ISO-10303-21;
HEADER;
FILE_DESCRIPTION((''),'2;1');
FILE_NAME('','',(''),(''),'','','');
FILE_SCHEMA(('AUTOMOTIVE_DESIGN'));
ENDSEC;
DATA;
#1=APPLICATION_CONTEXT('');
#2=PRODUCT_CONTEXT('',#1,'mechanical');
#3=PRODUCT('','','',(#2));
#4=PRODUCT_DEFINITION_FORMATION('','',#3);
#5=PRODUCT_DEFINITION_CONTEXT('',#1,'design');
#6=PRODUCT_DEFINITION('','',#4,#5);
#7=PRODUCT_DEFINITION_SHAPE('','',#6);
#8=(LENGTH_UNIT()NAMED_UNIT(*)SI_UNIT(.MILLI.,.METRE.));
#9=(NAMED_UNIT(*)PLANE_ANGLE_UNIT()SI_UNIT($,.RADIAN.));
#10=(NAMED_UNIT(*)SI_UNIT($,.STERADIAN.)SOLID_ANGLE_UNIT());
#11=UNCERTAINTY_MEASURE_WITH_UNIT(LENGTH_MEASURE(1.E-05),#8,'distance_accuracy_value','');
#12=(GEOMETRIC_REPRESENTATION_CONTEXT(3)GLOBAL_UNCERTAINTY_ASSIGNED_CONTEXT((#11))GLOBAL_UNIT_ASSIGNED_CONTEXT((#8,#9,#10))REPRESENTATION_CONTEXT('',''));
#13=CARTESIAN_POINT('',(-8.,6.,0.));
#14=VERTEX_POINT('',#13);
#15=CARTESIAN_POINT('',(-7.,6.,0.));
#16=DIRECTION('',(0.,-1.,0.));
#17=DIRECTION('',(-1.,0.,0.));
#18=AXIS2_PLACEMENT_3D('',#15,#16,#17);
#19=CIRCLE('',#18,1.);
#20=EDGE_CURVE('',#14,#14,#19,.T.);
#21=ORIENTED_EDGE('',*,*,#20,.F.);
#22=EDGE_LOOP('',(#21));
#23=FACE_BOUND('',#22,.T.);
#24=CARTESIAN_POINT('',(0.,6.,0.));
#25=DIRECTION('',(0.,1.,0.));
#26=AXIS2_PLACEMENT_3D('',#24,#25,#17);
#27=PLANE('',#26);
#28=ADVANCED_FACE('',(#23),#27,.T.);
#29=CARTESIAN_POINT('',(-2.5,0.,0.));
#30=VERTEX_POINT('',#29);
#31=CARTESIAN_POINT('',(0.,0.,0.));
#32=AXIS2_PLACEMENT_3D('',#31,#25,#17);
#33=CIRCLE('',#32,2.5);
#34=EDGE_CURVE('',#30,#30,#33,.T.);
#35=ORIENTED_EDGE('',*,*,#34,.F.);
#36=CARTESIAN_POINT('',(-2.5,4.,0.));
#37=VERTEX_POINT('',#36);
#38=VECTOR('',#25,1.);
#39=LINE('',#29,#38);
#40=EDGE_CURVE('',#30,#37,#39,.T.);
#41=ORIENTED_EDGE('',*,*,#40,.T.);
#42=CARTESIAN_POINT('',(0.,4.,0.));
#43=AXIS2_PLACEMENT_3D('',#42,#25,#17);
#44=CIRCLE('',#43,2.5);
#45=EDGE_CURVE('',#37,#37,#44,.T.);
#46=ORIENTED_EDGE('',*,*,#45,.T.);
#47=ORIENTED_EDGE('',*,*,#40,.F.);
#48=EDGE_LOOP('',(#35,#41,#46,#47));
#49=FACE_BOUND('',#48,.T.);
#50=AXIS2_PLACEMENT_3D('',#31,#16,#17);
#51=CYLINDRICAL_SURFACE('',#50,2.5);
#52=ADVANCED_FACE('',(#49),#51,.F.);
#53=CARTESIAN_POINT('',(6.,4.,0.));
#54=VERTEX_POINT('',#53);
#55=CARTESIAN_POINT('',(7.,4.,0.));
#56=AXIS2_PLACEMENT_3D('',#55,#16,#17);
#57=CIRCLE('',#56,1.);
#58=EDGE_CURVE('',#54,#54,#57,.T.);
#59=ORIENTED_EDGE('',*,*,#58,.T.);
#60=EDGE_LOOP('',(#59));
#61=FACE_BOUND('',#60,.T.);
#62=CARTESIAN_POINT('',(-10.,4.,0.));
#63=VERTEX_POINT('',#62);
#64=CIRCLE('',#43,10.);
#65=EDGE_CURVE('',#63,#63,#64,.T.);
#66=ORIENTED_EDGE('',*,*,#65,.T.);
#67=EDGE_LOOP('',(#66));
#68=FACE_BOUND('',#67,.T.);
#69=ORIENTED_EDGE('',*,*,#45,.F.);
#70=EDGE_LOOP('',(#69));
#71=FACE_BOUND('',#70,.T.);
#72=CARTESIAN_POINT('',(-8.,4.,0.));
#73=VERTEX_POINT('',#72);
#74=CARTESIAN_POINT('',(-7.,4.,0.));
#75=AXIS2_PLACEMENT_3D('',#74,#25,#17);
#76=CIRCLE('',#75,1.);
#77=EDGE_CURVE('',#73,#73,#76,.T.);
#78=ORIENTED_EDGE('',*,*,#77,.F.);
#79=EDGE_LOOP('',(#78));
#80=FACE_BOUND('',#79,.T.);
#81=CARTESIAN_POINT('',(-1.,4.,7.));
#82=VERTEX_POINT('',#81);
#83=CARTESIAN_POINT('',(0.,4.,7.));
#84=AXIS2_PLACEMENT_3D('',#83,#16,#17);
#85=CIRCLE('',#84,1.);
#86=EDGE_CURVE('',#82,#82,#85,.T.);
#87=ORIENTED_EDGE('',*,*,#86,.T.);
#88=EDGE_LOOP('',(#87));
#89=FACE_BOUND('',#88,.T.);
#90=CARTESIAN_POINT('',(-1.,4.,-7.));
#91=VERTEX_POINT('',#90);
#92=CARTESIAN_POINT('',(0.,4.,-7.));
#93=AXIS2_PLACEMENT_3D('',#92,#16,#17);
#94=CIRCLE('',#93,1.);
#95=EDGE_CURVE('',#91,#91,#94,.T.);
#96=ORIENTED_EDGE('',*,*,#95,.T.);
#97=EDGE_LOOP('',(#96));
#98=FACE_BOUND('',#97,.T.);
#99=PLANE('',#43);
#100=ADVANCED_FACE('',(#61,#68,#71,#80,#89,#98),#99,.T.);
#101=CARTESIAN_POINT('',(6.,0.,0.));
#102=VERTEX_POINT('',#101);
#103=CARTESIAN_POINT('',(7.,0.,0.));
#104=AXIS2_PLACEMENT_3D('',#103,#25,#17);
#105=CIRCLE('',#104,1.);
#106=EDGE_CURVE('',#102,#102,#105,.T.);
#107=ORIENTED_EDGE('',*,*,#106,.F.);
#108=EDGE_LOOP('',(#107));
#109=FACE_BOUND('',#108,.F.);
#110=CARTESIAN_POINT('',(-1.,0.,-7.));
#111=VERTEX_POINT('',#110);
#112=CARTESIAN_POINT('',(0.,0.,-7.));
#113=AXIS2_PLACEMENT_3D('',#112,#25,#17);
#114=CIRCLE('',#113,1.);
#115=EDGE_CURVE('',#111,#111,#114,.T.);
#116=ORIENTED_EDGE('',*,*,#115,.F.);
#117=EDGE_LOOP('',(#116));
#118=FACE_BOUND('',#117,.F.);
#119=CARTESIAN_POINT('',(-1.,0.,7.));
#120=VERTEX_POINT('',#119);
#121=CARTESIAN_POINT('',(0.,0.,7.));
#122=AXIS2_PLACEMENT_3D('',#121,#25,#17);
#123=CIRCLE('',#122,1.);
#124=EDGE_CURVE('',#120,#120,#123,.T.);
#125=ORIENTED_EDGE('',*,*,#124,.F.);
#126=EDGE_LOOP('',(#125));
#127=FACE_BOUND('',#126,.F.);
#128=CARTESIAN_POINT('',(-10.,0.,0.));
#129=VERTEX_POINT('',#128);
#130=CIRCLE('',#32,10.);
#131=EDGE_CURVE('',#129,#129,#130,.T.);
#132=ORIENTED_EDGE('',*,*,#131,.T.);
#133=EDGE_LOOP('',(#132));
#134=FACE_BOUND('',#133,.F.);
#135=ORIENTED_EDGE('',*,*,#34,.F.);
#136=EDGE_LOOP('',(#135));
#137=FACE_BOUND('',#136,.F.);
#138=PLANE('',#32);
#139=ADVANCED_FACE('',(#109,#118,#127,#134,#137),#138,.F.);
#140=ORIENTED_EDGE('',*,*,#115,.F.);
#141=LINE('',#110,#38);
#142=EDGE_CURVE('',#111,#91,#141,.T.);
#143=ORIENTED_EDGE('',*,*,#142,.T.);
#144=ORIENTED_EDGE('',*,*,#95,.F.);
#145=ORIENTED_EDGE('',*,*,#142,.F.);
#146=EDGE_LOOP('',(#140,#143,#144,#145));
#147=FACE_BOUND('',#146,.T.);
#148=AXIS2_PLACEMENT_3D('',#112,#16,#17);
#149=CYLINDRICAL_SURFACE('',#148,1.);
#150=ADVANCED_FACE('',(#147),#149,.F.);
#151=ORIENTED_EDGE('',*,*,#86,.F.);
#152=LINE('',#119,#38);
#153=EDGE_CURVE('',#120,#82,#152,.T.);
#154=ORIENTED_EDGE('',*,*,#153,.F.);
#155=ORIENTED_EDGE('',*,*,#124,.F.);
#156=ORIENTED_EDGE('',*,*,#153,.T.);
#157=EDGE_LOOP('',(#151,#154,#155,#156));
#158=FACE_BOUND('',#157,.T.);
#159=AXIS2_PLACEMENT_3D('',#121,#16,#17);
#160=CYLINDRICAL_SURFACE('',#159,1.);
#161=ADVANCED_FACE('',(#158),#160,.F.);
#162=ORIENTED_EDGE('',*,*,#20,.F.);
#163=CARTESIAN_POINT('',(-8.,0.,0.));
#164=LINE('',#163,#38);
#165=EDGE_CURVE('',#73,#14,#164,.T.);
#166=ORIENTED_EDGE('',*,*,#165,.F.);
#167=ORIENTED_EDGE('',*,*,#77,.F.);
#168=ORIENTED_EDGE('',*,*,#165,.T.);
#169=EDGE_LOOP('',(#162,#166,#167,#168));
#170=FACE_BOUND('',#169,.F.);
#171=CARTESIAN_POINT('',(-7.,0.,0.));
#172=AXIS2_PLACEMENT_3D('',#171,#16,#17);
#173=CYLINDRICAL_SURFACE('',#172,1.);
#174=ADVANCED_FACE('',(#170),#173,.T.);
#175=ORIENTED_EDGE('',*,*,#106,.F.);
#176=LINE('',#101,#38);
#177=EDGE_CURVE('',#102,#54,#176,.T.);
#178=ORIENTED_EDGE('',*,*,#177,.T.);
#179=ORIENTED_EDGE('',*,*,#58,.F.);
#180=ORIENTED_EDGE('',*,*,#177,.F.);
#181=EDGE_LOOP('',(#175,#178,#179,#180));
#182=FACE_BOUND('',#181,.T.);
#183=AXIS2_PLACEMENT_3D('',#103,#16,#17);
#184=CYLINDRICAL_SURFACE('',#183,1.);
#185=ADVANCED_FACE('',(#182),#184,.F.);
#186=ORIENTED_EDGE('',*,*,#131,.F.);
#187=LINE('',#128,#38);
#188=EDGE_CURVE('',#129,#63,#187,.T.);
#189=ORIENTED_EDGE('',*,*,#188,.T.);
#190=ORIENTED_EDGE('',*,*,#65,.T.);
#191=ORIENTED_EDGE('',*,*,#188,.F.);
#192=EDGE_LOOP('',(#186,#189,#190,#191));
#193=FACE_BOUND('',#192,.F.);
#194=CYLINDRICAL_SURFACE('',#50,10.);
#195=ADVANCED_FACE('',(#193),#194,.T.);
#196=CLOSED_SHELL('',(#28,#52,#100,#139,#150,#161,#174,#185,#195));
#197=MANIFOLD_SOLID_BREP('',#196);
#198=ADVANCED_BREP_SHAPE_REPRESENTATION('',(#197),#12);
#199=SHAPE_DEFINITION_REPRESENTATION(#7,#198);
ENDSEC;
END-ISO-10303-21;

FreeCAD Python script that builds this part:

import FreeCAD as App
import Part
import Sketcher
from FreeCAD import Vector
Q = App.Units.Quantity

doc = App.newDocument("Part")
body = doc.addObject("PartDesign::Body", "Body")

sketch1 = body.newObject("Sketcher::SketchObject", "Sketch")
sketch1.AttachmentSupport = (doc.getObject("XZ_Plane"), [""])
sketch1.MapMode = "FlatFace"
sketch1.addGeometry([
    Part.Circle(Vector(0, 0, 0), Vector(0, 0, 1), 10),
    Part.Circle(Vector(-7, 0, 0), Vector(0, 0, 1), 1),
    Part.Circle(Vector(0, -7, 0), Vector(0, 0, 1), 1),
    Part.Circle(Vector(7, 0, 0), Vector(0, 0, 1), 1),
    Part.Circle(Vector(0, 7, 0), Vector(0, 0, 1), 1),
    Part.Circle(Vector(0, 0, 0), Vector(0, 0, 1), 2.5),
], False)
sketch1.addConstraint([
    Sketcher.Constraint("Coincident", 0, 3, -1, 1),
    Sketcher.Constraint("Coincident", 5, 3, -1, 1),
    Sketcher.Constraint("Equal", 1, 2),
    Sketcher.Constraint("Equal", 2, 3),
    Sketcher.Constraint("Equal", 3, 4),
    Sketcher.Constraint("Symmetric", 1, 3, 3, 3, -1, 1),
    Sketcher.Constraint("Symmetric", 2, 3, 4, 3, -1, 1),
    Sketcher.Constraint("PointOnObject", 1, 3, -1),
    Sketcher.Constraint("PointOnObject", 2, 3, -2),
    Sketcher.Constraint("Diameter", 1, Q("2 mm")),
    Sketcher.Constraint("Diameter", 5, Q("5 mm")),
    Sketcher.Constraint("Diameter", 0, Q("20 mm")),
    Sketcher.Constraint("DistanceX", 1, 3, 3, 3, Q("14 mm")),
    Sketcher.Constraint("DistanceY", 2, 3, 4, 3, Q("14 mm")),
])
pad1 = body.newObject("PartDesign::Pad", "Pad")
pad1.Profile = sketch1
pad1.Length = 4
pad1.Reversed = True

sketch2 = body.newObject("Sketcher::SketchObject", "Sketch001")
sketch2.AttachmentSupport = (doc.getObject("XZ_Plane"), [""])
sketch2.MapMode = "FlatFace"
sketch2.addGeometry(Part.Circle(Vector(-7, 0, 0), Vector(0, 0, 1), 1), False)
sketch2.addConstraint([
    Sketcher.Constraint("PointOnObject", 0, 3, -1),
    Sketcher.Constraint("Diameter", 0, Q("2 mm")),
    Sketcher.Constraint("DistanceX", 0, 3, -1, 1, Q("7 mm")),
])
pad2 = body.newObject("PartDesign::Pad", "Pad001")
pad2.Profile = sketch2
pad2.Length = 6
pad2.Reversed = True

doc.recompute()
